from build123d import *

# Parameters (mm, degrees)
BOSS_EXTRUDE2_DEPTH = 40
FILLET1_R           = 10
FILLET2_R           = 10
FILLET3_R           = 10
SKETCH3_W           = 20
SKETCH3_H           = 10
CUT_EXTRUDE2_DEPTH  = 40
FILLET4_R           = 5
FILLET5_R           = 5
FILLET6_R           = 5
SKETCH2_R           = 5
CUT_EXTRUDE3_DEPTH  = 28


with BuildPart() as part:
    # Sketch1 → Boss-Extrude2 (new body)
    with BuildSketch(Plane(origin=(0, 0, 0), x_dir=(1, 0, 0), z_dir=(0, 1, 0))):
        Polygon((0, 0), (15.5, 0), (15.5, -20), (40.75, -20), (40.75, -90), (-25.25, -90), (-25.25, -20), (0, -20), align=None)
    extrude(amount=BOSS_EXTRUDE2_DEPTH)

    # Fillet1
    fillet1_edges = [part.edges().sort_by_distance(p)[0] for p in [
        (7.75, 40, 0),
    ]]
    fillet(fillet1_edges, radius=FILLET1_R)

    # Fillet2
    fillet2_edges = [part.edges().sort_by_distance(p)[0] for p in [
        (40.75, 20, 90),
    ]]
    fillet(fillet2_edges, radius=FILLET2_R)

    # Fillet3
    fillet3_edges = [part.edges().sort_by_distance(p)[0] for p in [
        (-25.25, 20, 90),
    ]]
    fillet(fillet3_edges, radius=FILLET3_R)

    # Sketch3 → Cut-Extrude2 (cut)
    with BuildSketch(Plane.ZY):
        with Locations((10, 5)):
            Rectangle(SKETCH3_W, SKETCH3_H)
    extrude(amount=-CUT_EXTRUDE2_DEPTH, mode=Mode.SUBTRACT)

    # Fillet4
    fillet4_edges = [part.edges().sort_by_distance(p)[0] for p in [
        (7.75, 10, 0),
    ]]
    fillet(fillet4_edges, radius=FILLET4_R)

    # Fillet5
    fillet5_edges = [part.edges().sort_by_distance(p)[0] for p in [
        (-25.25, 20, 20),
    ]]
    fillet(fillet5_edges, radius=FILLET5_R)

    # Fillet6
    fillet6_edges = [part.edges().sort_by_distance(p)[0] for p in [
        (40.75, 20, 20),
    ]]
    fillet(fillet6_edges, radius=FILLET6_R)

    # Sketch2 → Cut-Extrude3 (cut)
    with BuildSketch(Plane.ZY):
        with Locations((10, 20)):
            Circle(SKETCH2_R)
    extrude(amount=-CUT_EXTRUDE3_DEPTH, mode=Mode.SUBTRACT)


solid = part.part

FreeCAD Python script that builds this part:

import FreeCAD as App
import Part
import Sketcher
from FreeCAD import Vector
Q = App.Units.Quantity


def edges_at(feature, points):
    """Names of the edges that pass closest to the given points."""
    edges = feature.Shape.Edges
    near = lambda p: min(range(len(edges)), key=lambda i: edges[i].distToShape(Part.Vertex(*p))[0])
    return sorted({f"Edge{near(p) + 1}" for p in points})

doc = App.newDocument("Part")
body = doc.addObject("PartDesign::Body", "Body")

# Sketch on XZ plane
sketch1 = body.newObject("Sketcher::SketchObject", "Sketch")
sketch1.AttachmentSupport = (doc.getObject("XZ_Plane"), [""])
sketch1.MapMode = "FlatFace"
sketch1.addGeometry(Part.LineSegment(Vector(16, 0, 0), Vector(0, 0, 0)), False)
sketch1.addGeometry(Part.LineSegment(Vector(0, 0, 0), Vector(0, 20, 0)), False)
sketch1.addGeometry(Part.LineSegment(Vector(0, 20, 0), Vector(-25, 20, 0)), False)
sketch1.addGeometry(Part.LineSegment(Vector(-25, 20, 0), Vector(-25, 90, 0)), False)
sketch1.addGeometry(Part.LineSegment(Vector(-25, 90, 0), Vector(41, 90, 0)), False)
sketch1.addGeometry(Part.LineSegment(Vector(41, 90, 0), Vector(41, 20, 0)), False)
sketch1.addGeometry(Part.LineSegment(Vector(41, 20, 0), Vector(16, 20, 0)), False)
sketch1.addGeometry(Part.LineSegment(Vector(16, 20, 0), Vector(16, 0, 0)), False)
sketch1.addConstraint(Sketcher.Constraint("Coincident", 0, 2, 1, 1))
sketch1.addConstraint(Sketcher.Constraint("Coincident", 1, 2, 2, 1))
sketch1.addConstraint(Sketcher.Constraint("Coincident", 2, 2, 3, 1))
sketch1.addConstraint(Sketcher.Constraint("Coincident", 3, 2, 4, 1))
sketch1.addConstraint(Sketcher.Constraint("Coincident", 4, 2, 5, 1))
sketch1.addConstraint(Sketcher.Constraint("Coincident", 5, 2, 6, 1))
sketch1.addConstraint(Sketcher.Constraint("Coincident", 6, 2, 7, 1))
sketch1.addConstraint(Sketcher.Constraint("Coincident", 7, 2, 0, 1))
sketch1.addConstraint(Sketcher.Constraint("Horizontal", 0))
sketch1.addConstraint(Sketcher.Constraint("Vertical", 1))
sketch1.addConstraint(Sketcher.Constraint("Horizontal", 2))
sketch1.addConstraint(Sketcher.Constraint("Vertical", 3))
sketch1.addConstraint(Sketcher.Constraint("Horizontal", 4))
sketch1.addConstraint(Sketcher.Constraint("Vertical", 5))
sketch1.addConstraint(Sketcher.Constraint("Horizontal", 6))
sketch1.addConstraint(Sketcher.Constraint("Vertical", 7))
sketch1.addConstraint(Sketcher.Constraint("Coincident", 0, 2, -1, 1))
sketch1.addConstraint(Sketcher.Constraint("Horizontal", 2, 2, 5, 2))
sketch1.addConstraint(Sketcher.Constraint("Equal", 2, 6))
sketch1.addConstraint(Sketcher.Constraint("DistanceX", 4, 1, 4, 2, Q("66 mm")))
sketch1.addConstraint(Sketcher.Constraint("DistanceY", 1, 1, 1, 2, Q("20 mm")))
sketch1.addConstraint(Sketcher.Constraint("DistanceY", 3, 1, 3, 2, Q("70 mm")))
sketch1.addConstraint(Sketcher.Constraint("DistanceX", 0, 2, 0, 1, Q("15.5 mm")))
pad1 = body.newObject("PartDesign::Pad", "Pad")
pad1.Profile = sketch1
pad1.Length = 40
pad1.Reversed = True
doc.recompute()

fillet = body.newObject("PartDesign::Fillet", "Fillet")
fillet.Base = (pad1, edges_at(pad1, [(7.75, 40, 0)]))
fillet.Radius = 10
doc.recompute()

fillet2 = body.newObject("PartDesign::Fillet", "Fillet001")
fillet2.Base = (fillet, edges_at(fillet, [(40.75, 20, 90)]))
fillet2.Radius = 10
doc.recompute()

fillet3 = body.newObject("PartDesign::Fillet", "Fillet002")
fillet3.Base = (fillet2, edges_at(fillet2, [(-25.25, 20, 90)]))
fillet3.Radius = 10

# Sketch on YZ plane
sketch2 = body.newObject("Sketcher::SketchObject", "Sketch001")
sketch2.AttachmentSupport = (doc.getObject("YZ_Plane"), [""])
sketch2.MapMode = "FlatFace"
sketch2.addGeometry(Part.LineSegment(Vector(10, 0, 0), Vector(0, 0, 0)), False)
sketch2.addGeometry(Part.LineSegment(Vector(0, 0, 0), Vector(0, 20, 0)), False)
sketch2.addGeometry(Part.LineSegment(Vector(0, 20, 0), Vector(10, 20, 0)), False)
sketch2.addGeometry(Part.LineSegment(Vector(10, 20, 0), Vector(10, 0, 0)), False)
sketch2.addConstraint(Sketcher.Constraint("Coincident", 0, 2, 1, 1))
sketch2.addConstraint(Sketcher.Constraint("Coincident", 1, 2, 2, 1))
sketch2.addConstraint(Sketcher.Constraint("Coincident", 2, 2, 3, 1))
sketch2.addConstraint(Sketcher.Constraint("Coincident", 3, 2, 0, 1))
sketch2.addConstraint(Sketcher.Constraint("Horizontal", 0))
sketch2.addConstraint(Sketcher.Constraint("Vertical", 1))
sketch2.addConstraint(Sketcher.Constraint("Horizontal", 2))
sketch2.addConstraint(Sketcher.Constraint("Vertical", 3))
sketch2.addConstraint(Sketcher.Constraint("Coincident", 0, 2, -1, 1))
sketch2.addConstraint(Sketcher.Constraint("DistanceX", 0, 2, 0, 1, Q("10 mm")))
sketch2.addConstraint(Sketcher.Constraint("DistanceY", 1, 1, 1, 2, Q("20 mm")))
pocket1 = body.newObject("PartDesign::Pocket", "Pocket")
pocket1.Profile = sketch2
pocket1.Length = 40
pocket1.Reversed = True
doc.recompute()

fillet4 = body.newObject("PartDesign::Fillet", "Fillet003")
fillet4.Base = (pocket1, edges_at(pocket1, [(7.75, 10, 0)]))
fillet4.Radius = 5
doc.recompute()

fillet5 = body.newObject("PartDesign::Fillet", "Fillet004")
fillet5.Base = (fillet4, edges_at(fillet4, [(-25.25, 20, 20)]))
fillet5.Radius = 5
doc.recompute()

fillet6 = body.newObject("PartDesign::Fillet", "Fillet005")
fillet6.Base = (fillet5, edges_at(fillet5, [(40.75, 20, 20)]))
fillet6.Radius = 5

# Sketch on YZ plane
sketch3 = body.newObject("Sketcher::SketchObject", "Sketch002")
sketch3.AttachmentSupport = (doc.getObject("YZ_Plane"), [""])
sketch3.MapMode = "FlatFace"
sketch3.addGeometry(Part.Circle(Vector(20, 10, 0), Vector(0, 0, 1), 5), False)
sketch3.addConstraint(Sketcher.Constraint("Diameter", 0, Q("10 mm")))
sketch3.addConstraint(Sketcher.Constraint("DistanceX", -1, 1, 0, 3, Q("20 mm")))
sketch3.addConstraint(Sketcher.Constraint("DistanceY", -1, 1, 0, 3, Q("10 mm")))
pocket2 = body.newObject("PartDesign::Pocket", "Pocket001")
pocket2.Profile = sketch3
pocket2.Length = 28
pocket2.Reversed = True

doc.recompute()
